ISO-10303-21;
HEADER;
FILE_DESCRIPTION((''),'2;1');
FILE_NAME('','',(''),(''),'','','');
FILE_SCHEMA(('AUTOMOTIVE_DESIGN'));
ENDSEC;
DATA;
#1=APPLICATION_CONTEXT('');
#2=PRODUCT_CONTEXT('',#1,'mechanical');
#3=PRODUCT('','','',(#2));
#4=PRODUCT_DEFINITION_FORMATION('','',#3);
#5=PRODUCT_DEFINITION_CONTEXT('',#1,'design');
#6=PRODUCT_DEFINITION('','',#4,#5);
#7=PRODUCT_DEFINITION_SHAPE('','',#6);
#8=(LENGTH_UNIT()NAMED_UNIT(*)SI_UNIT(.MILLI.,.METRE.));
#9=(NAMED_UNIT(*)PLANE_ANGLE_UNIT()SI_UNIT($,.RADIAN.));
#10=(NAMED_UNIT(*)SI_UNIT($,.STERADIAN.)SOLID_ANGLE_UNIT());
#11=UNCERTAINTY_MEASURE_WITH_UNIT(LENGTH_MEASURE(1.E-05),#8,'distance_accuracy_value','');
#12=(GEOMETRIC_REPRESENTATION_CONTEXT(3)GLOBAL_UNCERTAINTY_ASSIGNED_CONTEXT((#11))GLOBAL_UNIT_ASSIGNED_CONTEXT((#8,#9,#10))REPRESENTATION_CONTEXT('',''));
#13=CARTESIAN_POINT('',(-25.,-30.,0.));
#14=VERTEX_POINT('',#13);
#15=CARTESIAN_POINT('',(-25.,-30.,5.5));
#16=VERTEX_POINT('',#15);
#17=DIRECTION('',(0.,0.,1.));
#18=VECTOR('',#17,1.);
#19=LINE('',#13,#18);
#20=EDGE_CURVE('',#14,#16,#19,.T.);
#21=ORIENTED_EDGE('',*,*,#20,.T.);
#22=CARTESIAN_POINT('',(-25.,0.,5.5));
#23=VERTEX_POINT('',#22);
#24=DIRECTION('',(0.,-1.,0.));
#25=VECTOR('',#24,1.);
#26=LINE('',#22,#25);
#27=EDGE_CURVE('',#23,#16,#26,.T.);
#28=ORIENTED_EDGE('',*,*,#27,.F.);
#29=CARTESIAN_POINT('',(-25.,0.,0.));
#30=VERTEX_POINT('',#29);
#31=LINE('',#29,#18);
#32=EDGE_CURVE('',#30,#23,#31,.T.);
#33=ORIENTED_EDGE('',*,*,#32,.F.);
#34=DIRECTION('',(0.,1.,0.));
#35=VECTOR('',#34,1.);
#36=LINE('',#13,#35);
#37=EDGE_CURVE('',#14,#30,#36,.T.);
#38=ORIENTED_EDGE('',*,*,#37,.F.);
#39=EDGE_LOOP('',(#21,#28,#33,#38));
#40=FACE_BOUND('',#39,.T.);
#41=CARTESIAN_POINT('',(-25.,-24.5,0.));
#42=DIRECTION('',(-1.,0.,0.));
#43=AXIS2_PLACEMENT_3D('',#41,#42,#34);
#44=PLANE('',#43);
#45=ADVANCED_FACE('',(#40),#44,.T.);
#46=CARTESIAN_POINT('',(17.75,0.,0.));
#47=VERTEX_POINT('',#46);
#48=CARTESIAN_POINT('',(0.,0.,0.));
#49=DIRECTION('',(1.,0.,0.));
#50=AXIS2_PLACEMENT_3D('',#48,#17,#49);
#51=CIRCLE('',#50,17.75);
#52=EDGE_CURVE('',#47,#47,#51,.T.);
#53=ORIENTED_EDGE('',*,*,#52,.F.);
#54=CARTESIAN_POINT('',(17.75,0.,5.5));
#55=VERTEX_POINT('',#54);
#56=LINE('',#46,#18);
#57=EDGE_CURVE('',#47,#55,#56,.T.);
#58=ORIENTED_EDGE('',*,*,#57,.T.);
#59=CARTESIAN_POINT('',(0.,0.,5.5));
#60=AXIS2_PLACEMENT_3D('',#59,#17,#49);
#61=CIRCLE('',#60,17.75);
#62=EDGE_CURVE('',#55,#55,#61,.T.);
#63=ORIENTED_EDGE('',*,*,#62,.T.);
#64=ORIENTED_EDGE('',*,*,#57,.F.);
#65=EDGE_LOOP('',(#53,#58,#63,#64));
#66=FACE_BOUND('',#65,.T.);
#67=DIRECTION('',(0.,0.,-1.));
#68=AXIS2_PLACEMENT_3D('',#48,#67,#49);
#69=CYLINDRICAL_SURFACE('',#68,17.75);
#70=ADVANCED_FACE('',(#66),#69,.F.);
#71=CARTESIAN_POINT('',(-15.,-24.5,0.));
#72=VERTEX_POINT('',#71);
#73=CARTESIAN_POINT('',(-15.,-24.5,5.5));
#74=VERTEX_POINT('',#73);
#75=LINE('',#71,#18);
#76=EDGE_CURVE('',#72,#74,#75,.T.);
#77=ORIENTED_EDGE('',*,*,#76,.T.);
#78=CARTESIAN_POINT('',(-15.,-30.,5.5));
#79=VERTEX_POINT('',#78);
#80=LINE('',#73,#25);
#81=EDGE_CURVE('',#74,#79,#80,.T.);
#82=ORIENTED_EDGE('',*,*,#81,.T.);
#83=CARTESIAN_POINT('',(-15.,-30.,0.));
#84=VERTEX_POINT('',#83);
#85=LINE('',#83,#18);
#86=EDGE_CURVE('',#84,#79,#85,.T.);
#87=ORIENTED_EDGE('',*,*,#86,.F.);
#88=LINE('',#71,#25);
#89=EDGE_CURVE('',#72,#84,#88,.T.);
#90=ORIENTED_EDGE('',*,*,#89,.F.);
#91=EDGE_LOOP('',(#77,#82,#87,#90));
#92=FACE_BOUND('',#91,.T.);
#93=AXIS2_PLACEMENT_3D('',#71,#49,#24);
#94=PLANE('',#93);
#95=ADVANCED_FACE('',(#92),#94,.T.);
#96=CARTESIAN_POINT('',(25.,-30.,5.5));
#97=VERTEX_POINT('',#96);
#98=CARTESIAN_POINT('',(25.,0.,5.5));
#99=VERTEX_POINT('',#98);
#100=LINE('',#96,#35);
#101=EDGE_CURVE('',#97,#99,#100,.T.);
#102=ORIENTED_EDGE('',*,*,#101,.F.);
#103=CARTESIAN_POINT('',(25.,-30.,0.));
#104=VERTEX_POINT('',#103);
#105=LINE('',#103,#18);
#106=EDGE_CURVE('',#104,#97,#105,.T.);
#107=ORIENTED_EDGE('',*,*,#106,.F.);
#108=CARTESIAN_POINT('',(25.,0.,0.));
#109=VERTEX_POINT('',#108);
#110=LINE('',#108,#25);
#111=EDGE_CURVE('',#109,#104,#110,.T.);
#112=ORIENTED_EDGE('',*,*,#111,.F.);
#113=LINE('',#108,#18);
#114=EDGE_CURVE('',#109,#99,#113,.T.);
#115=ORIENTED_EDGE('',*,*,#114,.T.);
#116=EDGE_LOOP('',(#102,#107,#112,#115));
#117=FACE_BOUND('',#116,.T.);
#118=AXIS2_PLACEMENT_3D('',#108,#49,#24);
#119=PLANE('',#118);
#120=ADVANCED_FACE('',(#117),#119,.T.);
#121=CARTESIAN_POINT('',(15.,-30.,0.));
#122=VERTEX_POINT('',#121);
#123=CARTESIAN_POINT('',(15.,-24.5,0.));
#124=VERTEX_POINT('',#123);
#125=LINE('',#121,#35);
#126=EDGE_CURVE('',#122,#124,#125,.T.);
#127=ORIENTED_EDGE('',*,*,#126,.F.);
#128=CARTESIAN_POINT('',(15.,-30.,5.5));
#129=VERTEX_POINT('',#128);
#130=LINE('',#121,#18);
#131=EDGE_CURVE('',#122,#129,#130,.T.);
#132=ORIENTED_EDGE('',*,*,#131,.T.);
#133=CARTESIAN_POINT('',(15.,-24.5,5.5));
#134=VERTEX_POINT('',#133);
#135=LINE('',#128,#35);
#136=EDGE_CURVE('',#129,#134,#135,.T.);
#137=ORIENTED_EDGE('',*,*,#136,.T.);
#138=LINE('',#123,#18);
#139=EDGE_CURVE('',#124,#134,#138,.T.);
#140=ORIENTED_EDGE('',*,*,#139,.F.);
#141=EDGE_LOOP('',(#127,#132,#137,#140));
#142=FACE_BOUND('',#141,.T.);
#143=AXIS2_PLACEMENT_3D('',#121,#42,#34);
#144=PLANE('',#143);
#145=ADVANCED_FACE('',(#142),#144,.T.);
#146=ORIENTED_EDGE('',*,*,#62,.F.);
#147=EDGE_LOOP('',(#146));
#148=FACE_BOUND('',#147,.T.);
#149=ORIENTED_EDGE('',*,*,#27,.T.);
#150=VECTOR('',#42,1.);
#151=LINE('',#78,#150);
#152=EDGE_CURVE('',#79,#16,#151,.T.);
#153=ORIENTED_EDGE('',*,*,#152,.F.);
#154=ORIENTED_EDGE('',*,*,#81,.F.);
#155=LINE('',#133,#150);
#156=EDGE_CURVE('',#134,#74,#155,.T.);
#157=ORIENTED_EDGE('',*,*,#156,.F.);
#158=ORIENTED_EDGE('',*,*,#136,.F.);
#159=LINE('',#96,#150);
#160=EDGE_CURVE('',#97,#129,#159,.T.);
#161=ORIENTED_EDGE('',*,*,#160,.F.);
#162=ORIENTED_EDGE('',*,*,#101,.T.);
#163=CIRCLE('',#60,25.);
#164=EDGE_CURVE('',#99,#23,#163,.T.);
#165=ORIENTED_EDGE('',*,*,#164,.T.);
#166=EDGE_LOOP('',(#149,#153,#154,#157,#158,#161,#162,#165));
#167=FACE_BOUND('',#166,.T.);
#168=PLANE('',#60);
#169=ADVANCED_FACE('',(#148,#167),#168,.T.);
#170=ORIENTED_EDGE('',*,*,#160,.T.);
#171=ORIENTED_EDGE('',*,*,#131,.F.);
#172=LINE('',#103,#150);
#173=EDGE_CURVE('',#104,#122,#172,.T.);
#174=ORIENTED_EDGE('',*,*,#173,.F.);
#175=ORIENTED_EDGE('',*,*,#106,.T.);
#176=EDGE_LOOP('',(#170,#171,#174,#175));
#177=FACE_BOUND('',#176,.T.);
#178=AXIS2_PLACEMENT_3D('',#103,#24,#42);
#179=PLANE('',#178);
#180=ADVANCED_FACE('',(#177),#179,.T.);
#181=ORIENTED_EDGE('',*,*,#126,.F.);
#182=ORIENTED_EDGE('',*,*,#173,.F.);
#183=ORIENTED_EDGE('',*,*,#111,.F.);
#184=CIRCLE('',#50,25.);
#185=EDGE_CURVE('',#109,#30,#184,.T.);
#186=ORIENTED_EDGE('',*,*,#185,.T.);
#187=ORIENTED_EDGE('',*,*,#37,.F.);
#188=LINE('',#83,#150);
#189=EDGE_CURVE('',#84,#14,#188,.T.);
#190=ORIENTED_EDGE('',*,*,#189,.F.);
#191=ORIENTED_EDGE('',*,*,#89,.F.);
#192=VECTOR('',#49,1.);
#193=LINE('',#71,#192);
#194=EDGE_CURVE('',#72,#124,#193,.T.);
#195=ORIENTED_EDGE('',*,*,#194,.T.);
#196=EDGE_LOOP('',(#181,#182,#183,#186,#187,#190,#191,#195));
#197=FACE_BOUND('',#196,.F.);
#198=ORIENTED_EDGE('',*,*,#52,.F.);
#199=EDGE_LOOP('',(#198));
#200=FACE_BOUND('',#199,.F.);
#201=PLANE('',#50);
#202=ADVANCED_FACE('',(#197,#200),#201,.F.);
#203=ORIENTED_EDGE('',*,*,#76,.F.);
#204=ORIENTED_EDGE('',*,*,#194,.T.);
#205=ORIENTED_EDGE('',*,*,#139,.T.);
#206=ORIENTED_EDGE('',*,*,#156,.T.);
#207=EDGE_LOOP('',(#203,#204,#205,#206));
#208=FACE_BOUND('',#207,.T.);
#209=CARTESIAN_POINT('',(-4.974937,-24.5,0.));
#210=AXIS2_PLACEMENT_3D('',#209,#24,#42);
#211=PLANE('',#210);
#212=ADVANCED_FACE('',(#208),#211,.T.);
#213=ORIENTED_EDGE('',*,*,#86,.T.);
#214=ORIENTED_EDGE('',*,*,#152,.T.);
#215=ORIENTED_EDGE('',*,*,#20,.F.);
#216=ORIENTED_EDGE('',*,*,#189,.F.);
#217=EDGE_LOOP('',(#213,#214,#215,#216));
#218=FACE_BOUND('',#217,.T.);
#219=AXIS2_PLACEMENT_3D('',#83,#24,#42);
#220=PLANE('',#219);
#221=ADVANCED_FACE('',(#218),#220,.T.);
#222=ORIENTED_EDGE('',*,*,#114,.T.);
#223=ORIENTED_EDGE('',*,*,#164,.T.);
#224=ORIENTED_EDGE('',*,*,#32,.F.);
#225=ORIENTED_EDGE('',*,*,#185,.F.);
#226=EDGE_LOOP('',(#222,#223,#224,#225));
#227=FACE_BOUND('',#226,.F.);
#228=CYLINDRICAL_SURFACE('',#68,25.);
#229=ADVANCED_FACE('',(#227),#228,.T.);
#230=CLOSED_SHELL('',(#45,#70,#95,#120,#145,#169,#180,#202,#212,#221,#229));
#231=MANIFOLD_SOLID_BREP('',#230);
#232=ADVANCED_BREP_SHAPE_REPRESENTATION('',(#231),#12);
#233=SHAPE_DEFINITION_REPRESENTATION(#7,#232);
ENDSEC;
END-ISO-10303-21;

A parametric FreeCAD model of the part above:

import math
import FreeCAD as App
import Part
import Sketcher

V = App.Vector

doc = App.newDocument("Part")
body = doc.addObject("PartDesign::Body", "Body")

sketch1 = body.newObject("Sketcher::SketchObject", "Sketch")
sketch1.AttachmentSupport = (doc.getObject("XY_Plane"), [""])
sketch1.MapMode = "FlatFace"
sketch1.addGeometry([
    Part.LineSegment(V(-15, -24, 0), V(15, -24, 0)),
    Part.LineSegment(V(15, -24, 0), V(15, -30, 0)),
    Part.LineSegment(V(15, -30, 0), V(25, -30, 0)),
    Part.LineSegment(V(25, -30, 0), V(25, 0, 0)),
    Part.ArcOfCircle(Part.Circle(V(0, 0, 0), V(0, 0, 1), 25), math.radians(0), math.radians(180)),
    Part.LineSegment(V(-25, 0, 0), V(-25, -30, 0)),
    Part.LineSegment(V(-25, -30, 0), V(-15, -30, 0)),
    Part.LineSegment(V(-15, -30, 0), V(-15, -24, 0)),
    Part.Circle(V(0, 0, 0), V(0, 0, 1), 18),
], False)
sketch1.addConstraint([
    Sketcher.Constraint("Coincident", 0, 2, 1, 1),
    Sketcher.Constraint("Coincident", 1, 2, 2, 1),
    Sketcher.Constraint("Coincident", 2, 2, 3, 1),
    Sketcher.Constraint("Tangent", 3, 2, 4, 1),
    Sketcher.Constraint("Tangent", 4, 2, 5, 1),
    Sketcher.Constraint("Coincident", 5, 2, 6, 1),
    Sketcher.Constraint("Coincident", 6, 2, 7, 1),
    Sketcher.Constraint("Coincident", 7, 2, 0, 1),
    Sketcher.Constraint("Horizontal", 0),
    Sketcher.Constraint("Vertical", 1),
    Sketcher.Constraint("Horizontal", 2),
    Sketcher.Constraint("Vertical", 3),
    Sketcher.Constraint("Vertical", 5),
    Sketcher.Constraint("Horizontal", 6),
    Sketcher.Constraint("Vertical", 7),
    Sketcher.Constraint("Coincident", 4, 3, -1, 1),
    Sketcher.Constraint("Coincident", 8, 3, -1, 1),
    Sketcher.Constraint("Symmetric", 1, 2, 6, 2, -2),
    Sketcher.Constraint("Equal", 0, 3),
    Sketcher.Constraint("Radius", 4, 25.0),
    Sketcher.Constraint("Diameter", 8, 35.5),
    Sketcher.Constraint("DistanceX", 2, 1, 2, 2, 10.0),
    Sketcher.Constraint("DistanceY", 1, 2, 1, 1, 5.5),
])
pad1 = body.newObject("PartDesign::Pad", "Pad")
pad1.Profile = sketch1
pad1.Length = 5.5

doc.recompute()
